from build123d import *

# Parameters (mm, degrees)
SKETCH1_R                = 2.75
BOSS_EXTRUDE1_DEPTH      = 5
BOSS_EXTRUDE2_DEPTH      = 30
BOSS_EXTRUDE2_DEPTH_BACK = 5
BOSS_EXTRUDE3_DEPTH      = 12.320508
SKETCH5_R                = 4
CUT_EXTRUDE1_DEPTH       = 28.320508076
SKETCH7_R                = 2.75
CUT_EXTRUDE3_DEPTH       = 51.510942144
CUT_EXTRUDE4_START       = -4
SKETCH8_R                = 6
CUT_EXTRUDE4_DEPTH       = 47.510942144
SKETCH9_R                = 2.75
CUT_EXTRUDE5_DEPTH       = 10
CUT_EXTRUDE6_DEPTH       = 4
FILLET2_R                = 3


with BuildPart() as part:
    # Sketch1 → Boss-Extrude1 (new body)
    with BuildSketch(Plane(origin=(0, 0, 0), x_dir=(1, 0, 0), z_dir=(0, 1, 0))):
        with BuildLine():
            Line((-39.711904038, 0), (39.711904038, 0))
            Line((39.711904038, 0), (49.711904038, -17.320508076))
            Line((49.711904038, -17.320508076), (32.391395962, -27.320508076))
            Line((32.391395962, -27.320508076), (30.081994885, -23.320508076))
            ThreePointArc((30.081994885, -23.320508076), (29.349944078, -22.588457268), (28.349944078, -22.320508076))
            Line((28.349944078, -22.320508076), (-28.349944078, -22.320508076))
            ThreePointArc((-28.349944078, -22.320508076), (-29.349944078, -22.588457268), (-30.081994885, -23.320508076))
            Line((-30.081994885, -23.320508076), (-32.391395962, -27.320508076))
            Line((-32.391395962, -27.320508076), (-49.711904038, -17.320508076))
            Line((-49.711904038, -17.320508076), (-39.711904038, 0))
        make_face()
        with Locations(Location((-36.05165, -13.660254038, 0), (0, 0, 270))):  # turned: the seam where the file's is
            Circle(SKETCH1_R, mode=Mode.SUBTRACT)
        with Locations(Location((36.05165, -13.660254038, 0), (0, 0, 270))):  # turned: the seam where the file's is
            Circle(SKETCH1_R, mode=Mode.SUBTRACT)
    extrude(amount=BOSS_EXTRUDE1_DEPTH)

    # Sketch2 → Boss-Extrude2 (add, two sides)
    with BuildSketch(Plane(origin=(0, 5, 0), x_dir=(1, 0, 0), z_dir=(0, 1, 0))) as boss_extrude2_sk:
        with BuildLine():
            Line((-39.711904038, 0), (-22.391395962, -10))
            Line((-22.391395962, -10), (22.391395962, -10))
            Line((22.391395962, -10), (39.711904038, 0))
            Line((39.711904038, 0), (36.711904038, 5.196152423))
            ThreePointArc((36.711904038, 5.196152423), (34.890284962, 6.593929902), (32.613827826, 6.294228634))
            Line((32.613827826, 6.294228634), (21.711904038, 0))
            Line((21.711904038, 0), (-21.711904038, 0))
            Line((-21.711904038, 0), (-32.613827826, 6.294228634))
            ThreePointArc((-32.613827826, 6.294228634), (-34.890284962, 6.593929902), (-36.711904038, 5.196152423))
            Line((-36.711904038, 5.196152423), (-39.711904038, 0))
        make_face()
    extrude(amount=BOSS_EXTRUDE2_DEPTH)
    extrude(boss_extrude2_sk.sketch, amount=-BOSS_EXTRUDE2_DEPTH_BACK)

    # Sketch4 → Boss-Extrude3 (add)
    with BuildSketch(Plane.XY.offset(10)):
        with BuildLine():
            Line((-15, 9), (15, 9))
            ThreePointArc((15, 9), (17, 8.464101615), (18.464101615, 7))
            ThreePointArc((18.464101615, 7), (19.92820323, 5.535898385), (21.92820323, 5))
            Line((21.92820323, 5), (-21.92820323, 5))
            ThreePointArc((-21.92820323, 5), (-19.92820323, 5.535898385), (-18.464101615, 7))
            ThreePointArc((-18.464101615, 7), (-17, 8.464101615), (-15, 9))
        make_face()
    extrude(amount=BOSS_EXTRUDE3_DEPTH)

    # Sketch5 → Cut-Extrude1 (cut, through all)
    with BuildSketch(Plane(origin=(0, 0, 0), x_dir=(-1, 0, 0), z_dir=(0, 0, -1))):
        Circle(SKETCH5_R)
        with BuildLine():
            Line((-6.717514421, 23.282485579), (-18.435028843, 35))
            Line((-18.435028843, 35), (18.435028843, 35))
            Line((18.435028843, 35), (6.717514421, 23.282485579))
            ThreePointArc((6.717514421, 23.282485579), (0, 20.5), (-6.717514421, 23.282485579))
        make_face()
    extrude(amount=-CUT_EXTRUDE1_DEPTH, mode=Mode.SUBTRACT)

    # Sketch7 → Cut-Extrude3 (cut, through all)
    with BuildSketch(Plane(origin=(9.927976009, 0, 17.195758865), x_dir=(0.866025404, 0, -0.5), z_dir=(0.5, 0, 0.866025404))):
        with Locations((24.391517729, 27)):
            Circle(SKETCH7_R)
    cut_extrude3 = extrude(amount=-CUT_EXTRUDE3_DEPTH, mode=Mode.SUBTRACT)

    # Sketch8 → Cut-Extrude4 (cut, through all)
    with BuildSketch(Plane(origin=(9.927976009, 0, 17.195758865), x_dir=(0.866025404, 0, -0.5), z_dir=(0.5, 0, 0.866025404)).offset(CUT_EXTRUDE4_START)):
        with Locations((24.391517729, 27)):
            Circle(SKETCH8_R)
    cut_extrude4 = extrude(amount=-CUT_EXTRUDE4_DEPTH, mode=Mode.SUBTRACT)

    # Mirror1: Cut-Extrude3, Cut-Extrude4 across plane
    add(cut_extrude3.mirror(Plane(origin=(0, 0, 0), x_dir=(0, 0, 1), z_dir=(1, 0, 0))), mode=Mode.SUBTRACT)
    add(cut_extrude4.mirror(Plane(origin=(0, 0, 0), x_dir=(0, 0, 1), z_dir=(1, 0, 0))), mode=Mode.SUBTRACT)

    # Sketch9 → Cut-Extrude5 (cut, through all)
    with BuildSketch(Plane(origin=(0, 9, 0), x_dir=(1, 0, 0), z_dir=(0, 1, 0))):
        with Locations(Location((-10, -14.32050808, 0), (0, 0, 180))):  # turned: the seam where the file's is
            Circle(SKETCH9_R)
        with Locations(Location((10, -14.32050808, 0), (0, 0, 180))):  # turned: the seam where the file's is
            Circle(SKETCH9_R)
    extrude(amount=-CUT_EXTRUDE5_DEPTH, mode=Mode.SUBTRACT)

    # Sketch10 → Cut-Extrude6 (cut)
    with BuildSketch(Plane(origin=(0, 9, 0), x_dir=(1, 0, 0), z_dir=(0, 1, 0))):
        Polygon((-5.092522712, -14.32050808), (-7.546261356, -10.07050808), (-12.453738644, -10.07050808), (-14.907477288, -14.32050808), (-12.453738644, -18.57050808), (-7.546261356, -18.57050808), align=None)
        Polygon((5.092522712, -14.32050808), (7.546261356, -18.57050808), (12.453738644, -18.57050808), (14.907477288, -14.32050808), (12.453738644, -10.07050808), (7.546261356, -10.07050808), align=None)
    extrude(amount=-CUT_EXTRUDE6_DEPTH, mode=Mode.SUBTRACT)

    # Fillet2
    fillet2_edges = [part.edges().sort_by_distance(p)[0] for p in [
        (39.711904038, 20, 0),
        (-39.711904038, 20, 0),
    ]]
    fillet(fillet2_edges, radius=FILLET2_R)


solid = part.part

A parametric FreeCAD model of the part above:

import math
import FreeCAD as App
import Part
import Sketcher
Q = App.Units.Quantity


def edges_at(feature, points):
    """Names of the edges that pass closest to the given points."""
    edges = feature.Shape.Edges
    near = lambda p: min(range(len(edges)), key=lambda i: edges[i].distToShape(Part.Vertex(*p))[0])
    return sorted({f"Edge{near(p) + 1}" for p in points})

doc = App.newDocument("Part")
body = doc.addObject("PartDesign::Body", "Body")

# Sketch on XZ plane
sketch1 = body.newObject("Sketcher::SketchObject", "Sketch")
sketch1.AttachmentSupport = (doc.getObject("XZ_Plane"), [""])
sketch1.MapMode = "FlatFace"
sketch1.addGeometry([
    Part.LineSegment(App.Vector(39.7, 0, 0), App.Vector(-39.7, 0, 0)),  # 0
    Part.LineSegment(App.Vector(-39.7, 0, 0), App.Vector(-49.7, 17.3, 0)),  # 1
    Part.LineSegment(App.Vector(-49.7, 17.3, 0), App.Vector(-32.4, 27.3, 0)),  # 2
    Part.LineSegment(App.Vector(-32.4, 27.3, 0), App.Vector(-30.1, 23.3, 0)),  # 3
    Part.ArcOfCircle(Part.Circle(App.Vector(-28.3, 24.3, 0), App.Vector(0, 0, 1), 2), math.radians(-150), math.radians(-90)),  # 4
    Part.LineSegment(App.Vector(-28.3, 22.3, 0), App.Vector(28.3, 22.3, 0)),  # 5
    Part.ArcOfCircle(Part.Circle(App.Vector(28.3, 24.3, 0), App.Vector(0, 0, 1), 2), math.radians(-90), math.radians(-30)),  # 6
    Part.LineSegment(App.Vector(30.1, 23.3, 0), App.Vector(32.4, 27.3, 0)),  # 7
    Part.LineSegment(App.Vector(32.4, 27.3, 0), App.Vector(49.7, 17.3, 0)),  # 8
    Part.LineSegment(App.Vector(49.7, 17.3, 0), App.Vector(39.7, 0, 0)),  # 9
    Part.Circle(App.Vector(36.1, 13.7, 0), App.Vector(0, 0, 1), 2.8),  # 10
    Part.Circle(App.Vector(-36.1, 13.7, 0), App.Vector(0, 0, 1), 2.8),  # 11
], False)
sketch1.addConstraint([
    Sketcher.Constraint("Coincident", 0, 2, 1, 1),
    Sketcher.Constraint("Coincident", 1, 2, 2, 1),
    Sketcher.Constraint("Coincident", 2, 2, 3, 1),
    Sketcher.Constraint("Tangent", 3, 2, 4, 1),
    Sketcher.Constraint("Tangent", 4, 2, 5, 1),
    Sketcher.Constraint("Tangent", 5, 2, 6, 1),
    Sketcher.Constraint("Tangent", 6, 2, 7, 1),
    Sketcher.Constraint("Coincident", 7, 2, 8, 1),
    Sketcher.Constraint("Coincident", 8, 2, 9, 1),
    Sketcher.Constraint("Coincident", 9, 2, 0, 1),
    Sketcher.Constraint("Horizontal", 0),
    Sketcher.Constraint("Horizontal", 5),
    Sketcher.Constraint("Equal", 4, 6),
    Sketcher.Constraint("Equal", 10, 11),
    Sketcher.Constraint("Symmetric", 0, 2, 9, 2, -1, 1),
    Sketcher.Constraint("Symmetric", 10, 3, 11, 3, -2),
    Sketcher.Constraint("Symmetric", 3, 2, 6, 2, -2),
    Sketcher.Constraint("Symmetric", 1, 2, 8, 2, -2),
    Sketcher.Constraint("Perpendicular", 1, 2),
    Sketcher.Constraint("Perpendicular", 2, 3),
    Sketcher.Constraint("Perpendicular", 7, 8),
    Sketcher.Constraint("Equal", 1, 2),
    Sketcher.Constraint("Radius", 4, 2.0),
    Sketcher.Constraint("Diameter", 10, 5.5),
    Sketcher.Constraint("Angle", 1, Q("120 deg")),
    Sketcher.Constraint("Distance", 1, 20.0),
    Sketcher.Constraint("DistanceY", 1, 2, 4, 3, 7.0),
    Sketcher.Constraint("DistanceX", 0, 2, 0, 1, 79.423808),
    Sketcher.Constraint("DistanceX", 11, 3, 10, 3, 72.1033),
    Sketcher.Constraint("DistanceY", -1, 1, 10, 3, 13.660254),
])
pad1 = body.newObject("PartDesign::Pad", "Pad")
pad1.Profile = sketch1
pad1.Length = 5
pad1.Reversed = True

# Sketch on XZ plane
sketch2 = body.newObject("Sketcher::SketchObject", "Sketch001")
sketch2.AttachmentSupport = (doc.getObject("XZ_Plane"), [""])
sketch2.MapMode = "FlatFace"
sketch2.AttachmentOffset = App.Placement(App.Vector(0, 0, -5), App.Rotation())
sketch2.addGeometry([
    Part.LineSegment(App.Vector(-39.7, 0, 0), App.Vector(-22.4, 10, 0)),  # 0
    Part.LineSegment(App.Vector(-22.4, 10, 0), App.Vector(22.4, 10, 0)),  # 1
    Part.LineSegment(App.Vector(22.4, 10, 0), App.Vector(39.7, 0, 0)),  # 2
    Part.LineSegment(App.Vector(39.7, 0, 0), App.Vector(36.7, -5.2, 0)),  # 3
    Part.ArcOfCircle(Part.Circle(App.Vector(34.1, -3.7, 0), App.Vector(0, 0, 1), 3), math.radians(-120), math.radians(-30)),  # 4
    Part.LineSegment(App.Vector(32.6, -6.3, 0), App.Vector(21.7, 0, 0)),  # 5
    Part.LineSegment(App.Vector(21.7, 0, 0), App.Vector(-21.7, 0, 0)),  # 6
    Part.LineSegment(App.Vector(-21.7, 0, 0), App.Vector(-32.6, -6.3, 0)),  # 7
    Part.ArcOfCircle(Part.Circle(App.Vector(-34.1, -3.7, 0), App.Vector(0, 0, 1), 3), math.radians(-150), math.radians(-60)),  # 8
    Part.LineSegment(App.Vector(-36.7, -5.2, 0), App.Vector(-39.7, 0, 0)),  # 9
], False)
sketch2.addConstraint([
    Sketcher.Constraint("Coincident", 0, 2, 1, 1),
    Sketcher.Constraint("Coincident", 1, 2, 2, 1),
    Sketcher.Constraint("Coincident", 2, 2, 3, 1),
    Sketcher.Constraint("Tangent", 3, 2, 4, 2),
    Sketcher.Constraint("Tangent", 4, 1, 5, 1),
    Sketcher.Constraint("Coincident", 5, 2, 6, 1),
    Sketcher.Constraint("Coincident", 6, 2, 7, 1),
    Sketcher.Constraint("Tangent", 7, 2, 8, 2),
    Sketcher.Constraint("Tangent", 8, 1, 9, 1),
    Sketcher.Constraint("Coincident", 9, 2, 0, 1),
    Sketcher.Constraint("Horizontal", 1),
    Sketcher.Constraint("Horizontal", 6),
    Sketcher.Constraint("Equal", 4, 8),
    Sketcher.Constraint("Symmetric", 5, 2, 6, 2, -1, 1),
    Sketcher.Constraint("Symmetric", 2, 2, 9, 2, -1, 1),
    Sketcher.Constraint("Symmetric", 4, 3, 8, 3, -2),
    Sketcher.Constraint("PointOnObject", 2, 2, -1),
    Sketcher.Constraint("Perpendicular", 2, 3),
    Sketcher.Constraint("Perpendicular", 3, 5),
    Sketcher.Constraint("Parallel", 0, 7),
    Sketcher.Constraint("Radius", 4, 3.0),
    Sketcher.Constraint("Angle", 0, Q("30 deg")),
    Sketcher.Constraint("Distance", 0, 20.0),
    Sketcher.Constraint("Distance", 3, 6.0),
    Sketcher.Constraint("DistanceX", 1, 1, 1, 2, 44.782792),
])
pad2 = body.newObject("PartDesign::Pad", "Pad001")
pad2.Profile = sketch2
pad2.Type = "TwoLengths"
pad2.Length = 30
pad2.Length2 = 5
pad2.Reversed = True

# Sketch on XY plane
sketch3 = body.newObject("Sketcher::SketchObject", "Sketch002")
sketch3.AttachmentSupport = (doc.getObject("XY_Plane"), [""])
sketch3.MapMode = "FlatFace"
sketch3.AttachmentOffset = App.Placement(App.Vector(0, 0, 10), App.Rotation())
sketch3.addGeometry([
    Part.LineSegment(App.Vector(15, 9, 0), App.Vector(-15, 9, 0)),  # 0
    Part.ArcOfCircle(Part.Circle(App.Vector(-15, 5, 0), App.Vector(0, 0, 1), 4), math.radians(90), math.radians(150)),  # 1
    Part.ArcOfCircle(Part.Circle(App.Vector(-21.9, 9, 0), App.Vector(0, 0, 1), 4), math.radians(-90), math.radians(-30)),  # 2
    Part.LineSegment(App.Vector(-21.9, 5, 0), App.Vector(21.9, 5, 0)),  # 3
    Part.ArcOfCircle(Part.Circle(App.Vector(21.9, 9, 0), App.Vector(0, 0, 1), 4), math.radians(-150), math.radians(-90)),  # 4
    Part.ArcOfCircle(Part.Circle(App.Vector(15, 5, 0), App.Vector(0, 0, 1), 4), math.radians(30), math.radians(90)),  # 5
], False)
sketch3.addConstraint([
    Sketcher.Constraint("Tangent", 0, 2, 1, 1),
    Sketcher.Constraint("Tangent", 1, 2, 2, 2),
    Sketcher.Constraint("Tangent", 2, 1, 3, 1),
    Sketcher.Constraint("Tangent", 3, 2, 4, 2),
    Sketcher.Constraint("Tangent", 4, 1, 5, 1),
    Sketcher.Constraint("Tangent", 5, 2, 0, 1),
    Sketcher.Constraint("Horizontal", 0),
    Sketcher.Constraint("Horizontal", 3),
    Sketcher.Constraint("Equal", 1, 2),
    Sketcher.Constraint("Equal", 2, 4),
    Sketcher.Constraint("Equal", 4, 5),
    Sketcher.Constraint("Horizontal", 4, 3, 0, 2),
    Sketcher.Constraint("Radius", 1, 4.0),
    Sketcher.Constraint("DistanceX", 0, 2, 0, 1, 30.0),
    Sketcher.Constraint("DistanceX", 1, 3, -1, 1, 15.0),
    Sketcher.Constraint("DistanceY", -1, 1, 1, 3, 5.0),
])
pad3 = body.newObject("PartDesign::Pad", "Pad002")
pad3.Profile = sketch3
pad3.Length = 12.320508

# Sketch on XY plane
sketch4 = body.newObject("Sketcher::SketchObject", "Sketch003")
sketch4.AttachmentSupport = (doc.getObject("XY_Plane"), [""])
sketch4.MapMode = "FlatFace"
sketch4.addGeometry([
    Part.Circle(App.Vector(0, 0, 0), App.Vector(0, 0, 1), 4),  # 0
    Part.LineSegment(App.Vector(18.4, 35, 0), App.Vector(6.7, 23.3, 0)),  # 1
    Part.ArcOfCircle(Part.Circle(App.Vector(0, 30, 0), App.Vector(0, 0, 1), 9.5), math.radians(-135), math.radians(-45)),  # 2
    Part.LineSegment(App.Vector(-6.7, 23.3, 0), App.Vector(-18.4, 35, 0)),  # 3
    Part.LineSegment(App.Vector(-18.4, 35, 0), App.Vector(18.4, 35, 0)),  # 4
], False)
sketch4.addConstraint([
    Sketcher.Constraint("Tangent", 1, 2, 2, 2),
    Sketcher.Constraint("Tangent", 2, 1, 3, 1),
    Sketcher.Constraint("Coincident", 3, 2, 4, 1),
    Sketcher.Constraint("Coincident", 4, 2, 1, 1),
    Sketcher.Constraint("Horizontal", 4),
    Sketcher.Constraint("Coincident", 0, 3, -1, 1),
    Sketcher.Constraint("Symmetric", 1, 2, 2, 1, -2),
    Sketcher.Constraint("Perpendicular", 1, 3),
    Sketcher.Constraint("Diameter", 0, 8.0),
    Sketcher.Constraint("Radius", 2, 9.5),
    Sketcher.Constraint("DistanceY", -1, 1, 2, 3, 30.0),
    Sketcher.Constraint("DistanceY", -1, 1, 3, 2, 35.0),
])
pocket1 = body.newObject("PartDesign::Pocket", "Pocket")
pocket1.Profile = sketch4
pocket1.Type = "ThroughAll"
pocket1.Reversed = True

# Sketch on an angled plane
sketch5 = body.newObject("Sketcher::SketchObject", "Sketch004")
sketch5.Placement = App.Placement(App.Vector(9.927976, 0, 17.195759), App.Rotation(App.Vector(0.866025404, 0, -0.5), App.Vector(0, 1, 0), App.Vector(0.5, 0, 0.866025404), "ZXY"))
sketch5.addGeometry(Part.Circle(App.Vector(24.4, 27, 0), App.Vector(0, 0, 1), 2.8), False)
sketch5.addConstraint([
    Sketcher.Constraint("Diameter", 0, 5.5),
    Sketcher.Constraint("DistanceY", -1, 1, 0, 3, 27.0),
    Sketcher.Constraint("DistanceX", -1, 1, 0, 3, 24.391518),
])
pocket2 = body.newObject("PartDesign::Pocket", "Pocket001")
pocket2.Profile = sketch5
pocket2.Type = "ThroughAll"

# Sketch on an angled plane
sketch6 = body.newObject("Sketcher::SketchObject", "Sketch005")
sketch6.Placement = App.Placement(App.Vector(7.927976, 0, 13.731657), App.Rotation(App.Vector(0.866025404, 0, -0.5), App.Vector(0, 1, 0), App.Vector(0.5, 0, 0.866025404), "ZXY"))
sketch6.addGeometry(Part.Circle(App.Vector(24, 27, 0), App.Vector(0, 0, 1), 6), False)
sketch6.addConstraint([
    Sketcher.Constraint("Diameter", 0, 12.0),
    Sketcher.Constraint("DistanceY", -1, 1, 0, 3, 27.0),
    Sketcher.Constraint("DistanceX", -1, 1, 0, 3, 24.391518),
])
pocket3 = body.newObject("PartDesign::Pocket", "Pocket002")
pocket3.Profile = sketch6
pocket3.Type = "ThroughAll"
doc.recompute()

mirrored = body.newObject("PartDesign::Mirrored", "Mirrored")
mirrored.Originals = [pocket2, pocket3]
mirrored.MirrorPlane = (doc.getObject("YZ_Plane"), [""])
body.Tip = mirrored

# Sketch on XZ plane
sketch7 = body.newObject("Sketcher::SketchObject", "Sketch006")
sketch7.AttachmentSupport = (doc.getObject("XZ_Plane"), [""])
sketch7.MapMode = "FlatFace"
sketch7.AttachmentOffset = App.Placement(App.Vector(0, 0, -9), App.Rotation())
sketch7.addGeometry([
    Part.Circle(App.Vector(-10, 14.3, 0), App.Vector(0, 0, 1), 2.8),
    Part.Circle(App.Vector(10, 14.3, 0), App.Vector(0, 0, 1), 2.8),
], False)
sketch7.addConstraint([
    Sketcher.Constraint("Equal", 0, 1),
    Sketcher.Constraint("Symmetric", 0, 3, 1, 3, -2),
    Sketcher.Constraint("Diameter", 0, 5.5),
    Sketcher.Constraint("DistanceX", 0, 3, -1, 1, 10.0),
    Sketcher.Constraint("DistanceY", -1, 1, 0, 3, 14.320508),
])
pocket4 = body.newObject("PartDesign::Pocket", "Pocket003")
pocket4.Profile = sketch7
pocket4.Type = "ThroughAll"
pocket4.Reversed = True

# Sketch on XZ plane
sketch8 = body.newObject("Sketcher::SketchObject", "Sketch007")
sketch8.AttachmentSupport = (doc.getObject("XZ_Plane"), [""])
sketch8.MapMode = "FlatFace"
sketch8.AttachmentOffset = App.Placement(App.Vector(0, 0, -9), App.Rotation())
sketch8.addGeometry([
    Part.LineSegment(App.Vector(-5.1, 14.3, 0), App.Vector(-7.5, 10.1, 0)),  # 0
    Part.LineSegment(App.Vector(-7.5, 10.1, 0), App.Vector(-12.5, 10.1, 0)),  # 1
    Part.LineSegment(App.Vector(-12.5, 10.1, 0), App.Vector(-14.9, 14.3, 0)),  # 2
    Part.LineSegment(App.Vector(-14.9, 14.3, 0), App.Vector(-12.5, 18.6, 0)),  # 3
    Part.LineSegment(App.Vector(-12.5, 18.6, 0), App.Vector(-7.5, 18.6, 0)),  # 4
    Part.LineSegment(App.Vector(-7.5, 18.6, 0), App.Vector(-5.1, 14.3, 0)),  # 5
    Part.LineSegment(App.Vector(5.1, 14.3, 0), App.Vector(7.5, 18.6, 0)),  # 6
    Part.LineSegment(App.Vector(7.5, 18.6, 0), App.Vector(12.5, 18.6, 0)),  # 7
    Part.LineSegment(App.Vector(12.5, 18.6, 0), App.Vector(14.9, 14.3, 0)),  # 8
    Part.LineSegment(App.Vector(14.9, 14.3, 0), App.Vector(12.5, 10.1, 0)),  # 9
    Part.LineSegment(App.Vector(12.5, 10.1, 0), App.Vector(7.5, 10.1, 0)),  # 10
    Part.LineSegment(App.Vector(7.5, 10.1, 0), App.Vector(5.1, 14.3, 0)),  # 11
], False)
sketch8.addConstraint([
    Sketcher.Constraint("Coincident", 0, 2, 1, 1),
    Sketcher.Constraint("Coincident", 1, 2, 2, 1),
    Sketcher.Constraint("Coincident", 2, 2, 3, 1),
    Sketcher.Constraint("Coincident", 3, 2, 4, 1),
    Sketcher.Constraint("Coincident", 4, 2, 5, 1),
    Sketcher.Constraint("Coincident", 5, 2, 0, 1),
    Sketcher.Constraint("Coincident", 6, 2, 7, 1),
    Sketcher.Constraint("Coincident", 7, 2, 8, 1),
    Sketcher.Constraint("Coincident", 8, 2, 9, 1),
    Sketcher.Constraint("Coincident", 9, 2, 10, 1),
    Sketcher.Constraint("Coincident", 10, 2, 11, 1),
    Sketcher.Constraint("Coincident", 11, 2, 6, 1),
    Sketcher.Constraint("Horizontal", 1),
    Sketcher.Constraint("Horizontal", 4),
    Sketcher.Constraint("Horizontal", 7),
    Sketcher.Constraint("Horizontal", 10),
    Sketcher.Constraint("Symmetric", 4, 2, 6, 2, -2),
    Sketcher.Constraint("Symmetric", 2, 2, 8, 2, -2),
    Sketcher.Constraint("Symmetric", 1, 2, 9, 2, -2),
    Sketcher.Constraint("Symmetric", 5, 2, 11, 2, -2),
    Sketcher.Constraint("Parallel", 0, 3),
    Sketcher.Constraint("Parallel", 2, 5),
    Sketcher.Constraint("Parallel", 3, 6),
    Sketcher.Constraint("Parallel", 5, 8),
    Sketcher.Constraint("Parallel", 8, 11),
    Sketcher.Constraint("Horizontal", 2, 2, 5, 2),
    Sketcher.Constraint("Vertical", 1, 2, 3, 2),
    Sketcher.Constraint("Angle", 0, Q("-120 deg")),
    Sketcher.Constraint("DistanceX", 3, 2, 6, 2, 20.0),
    Sketcher.Constraint("DistanceY", 1, 2, 3, 2, 8.5),
    Sketcher.Constraint("DistanceX", 1, 2, 1, 1, 4.907477),
    Sketcher.Constraint("DistanceY", -1, 1, 0, 2, 10.070508),
])
pocket5 = body.newObject("PartDesign::Pocket", "Pocket004")
pocket5.Profile = sketch8
pocket5.Length = 4
pocket5.Reversed = True
doc.recompute()

fillet = body.newObject("PartDesign::Fillet", "Fillet")
fillet.Base = (pocket5, edges_at(pocket5, [(39.712, 20, 0), (-39.712, 20, 0)]))
fillet.Radius = 3

doc.recompute()
